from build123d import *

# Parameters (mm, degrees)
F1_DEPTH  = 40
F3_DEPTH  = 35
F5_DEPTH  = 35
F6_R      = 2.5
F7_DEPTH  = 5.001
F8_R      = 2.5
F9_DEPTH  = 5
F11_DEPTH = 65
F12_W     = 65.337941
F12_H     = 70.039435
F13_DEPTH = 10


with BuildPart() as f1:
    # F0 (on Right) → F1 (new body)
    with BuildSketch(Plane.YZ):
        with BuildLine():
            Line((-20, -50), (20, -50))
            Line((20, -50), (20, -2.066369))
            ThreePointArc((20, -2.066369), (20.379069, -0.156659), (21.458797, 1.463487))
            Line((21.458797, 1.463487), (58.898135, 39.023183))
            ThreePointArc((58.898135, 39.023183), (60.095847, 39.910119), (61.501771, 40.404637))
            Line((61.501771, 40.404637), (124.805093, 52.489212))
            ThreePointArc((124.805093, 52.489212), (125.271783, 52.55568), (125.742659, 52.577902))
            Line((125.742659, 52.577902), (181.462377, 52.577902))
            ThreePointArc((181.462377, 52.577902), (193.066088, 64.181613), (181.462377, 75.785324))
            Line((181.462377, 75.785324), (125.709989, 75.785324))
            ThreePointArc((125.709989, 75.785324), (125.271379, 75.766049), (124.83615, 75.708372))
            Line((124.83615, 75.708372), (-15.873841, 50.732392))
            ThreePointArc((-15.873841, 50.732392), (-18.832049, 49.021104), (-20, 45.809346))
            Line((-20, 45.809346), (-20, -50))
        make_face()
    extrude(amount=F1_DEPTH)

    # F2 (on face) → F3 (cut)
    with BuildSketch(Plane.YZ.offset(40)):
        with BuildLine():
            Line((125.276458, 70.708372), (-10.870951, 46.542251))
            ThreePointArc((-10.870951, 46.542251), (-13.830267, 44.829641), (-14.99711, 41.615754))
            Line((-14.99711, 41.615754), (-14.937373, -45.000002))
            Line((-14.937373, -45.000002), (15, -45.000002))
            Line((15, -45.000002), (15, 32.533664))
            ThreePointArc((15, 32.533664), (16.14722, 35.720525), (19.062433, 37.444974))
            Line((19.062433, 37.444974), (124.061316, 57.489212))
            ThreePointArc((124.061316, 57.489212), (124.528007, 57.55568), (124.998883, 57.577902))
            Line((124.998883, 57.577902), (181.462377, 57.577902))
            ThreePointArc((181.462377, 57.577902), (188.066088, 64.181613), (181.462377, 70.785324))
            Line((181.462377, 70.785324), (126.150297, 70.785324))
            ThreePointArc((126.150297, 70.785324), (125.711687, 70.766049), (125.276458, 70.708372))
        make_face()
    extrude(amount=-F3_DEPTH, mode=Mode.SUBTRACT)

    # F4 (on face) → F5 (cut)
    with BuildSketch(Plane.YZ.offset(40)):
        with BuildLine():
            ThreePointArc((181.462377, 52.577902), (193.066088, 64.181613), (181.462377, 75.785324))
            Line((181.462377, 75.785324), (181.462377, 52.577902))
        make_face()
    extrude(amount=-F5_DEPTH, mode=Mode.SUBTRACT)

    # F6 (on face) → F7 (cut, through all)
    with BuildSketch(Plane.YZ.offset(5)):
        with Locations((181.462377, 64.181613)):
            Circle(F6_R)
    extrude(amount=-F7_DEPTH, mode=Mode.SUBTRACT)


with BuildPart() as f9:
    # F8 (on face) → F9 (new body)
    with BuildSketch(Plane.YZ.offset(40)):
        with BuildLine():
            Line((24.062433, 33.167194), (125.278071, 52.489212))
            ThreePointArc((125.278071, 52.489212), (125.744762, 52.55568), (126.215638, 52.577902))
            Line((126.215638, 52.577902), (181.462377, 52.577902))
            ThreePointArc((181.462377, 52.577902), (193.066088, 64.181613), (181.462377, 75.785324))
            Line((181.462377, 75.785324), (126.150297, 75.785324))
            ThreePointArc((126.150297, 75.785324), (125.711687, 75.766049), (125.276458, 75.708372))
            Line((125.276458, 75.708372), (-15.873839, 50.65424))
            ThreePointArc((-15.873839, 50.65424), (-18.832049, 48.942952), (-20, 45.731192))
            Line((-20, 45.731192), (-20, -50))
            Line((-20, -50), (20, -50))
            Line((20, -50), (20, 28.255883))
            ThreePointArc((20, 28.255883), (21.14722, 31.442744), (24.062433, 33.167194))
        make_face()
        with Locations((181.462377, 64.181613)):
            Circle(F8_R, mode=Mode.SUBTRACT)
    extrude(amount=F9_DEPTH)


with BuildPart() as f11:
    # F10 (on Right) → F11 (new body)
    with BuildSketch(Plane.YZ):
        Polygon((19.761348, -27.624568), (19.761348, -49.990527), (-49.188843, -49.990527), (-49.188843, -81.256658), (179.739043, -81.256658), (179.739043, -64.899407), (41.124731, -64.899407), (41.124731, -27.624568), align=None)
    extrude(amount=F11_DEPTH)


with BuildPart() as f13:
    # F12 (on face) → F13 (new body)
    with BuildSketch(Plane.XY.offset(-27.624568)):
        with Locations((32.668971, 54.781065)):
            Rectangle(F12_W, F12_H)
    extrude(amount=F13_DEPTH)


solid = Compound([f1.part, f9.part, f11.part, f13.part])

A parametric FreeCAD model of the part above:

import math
import FreeCAD as App
import Part
import Sketcher
from FreeCAD import Vector

doc = App.newDocument("Part")
body = doc.addObject("PartDesign::Body", "Body")

sketch1 = body.newObject("Sketcher::SketchObject", "Sketch")
sketch1.AttachmentSupport = (doc.getObject("YZ_Plane"), [""])
sketch1.MapMode = "FlatFace"
sketch1.addGeometry(Part.LineSegment(Vector(-20, -50, 0), Vector(20, -50, 0)), False)
sketch1.addGeometry(Part.LineSegment(Vector(20, -50, 0), Vector(20, -2.1, 0)), False)
sketch1.addGeometry(Part.ArcOfCircle(Part.Circle(Vector(25, -2.1, 0), Vector(0, 0, 1), 5), math.radians(135), math.radians(180)), False)
sketch1.addGeometry(Part.LineSegment(Vector(21.5, 1.5, 0), Vector(58.9, 39, 0)), False)
sketch1.addGeometry(Part.ArcOfCircle(Part.Circle(Vector(62.4, 35.5, 0), Vector(0, 0, 1), 5), math.radians(101), math.radians(135)), False)
sketch1.addGeometry(Part.LineSegment(Vector(61.5, 40.4, 0), Vector(124.8, 52.5, 0)), False)
sketch1.addGeometry(Part.ArcOfCircle(Part.Circle(Vector(125.7, 47.6, 0), Vector(0, 0, 1), 5), math.radians(90), math.radians(100.81)), False)
sketch1.addGeometry(Part.LineSegment(Vector(125.7, 52.6, 0), Vector(181.5, 52.6, 0)), False)
sketch1.addGeometry(Part.ArcOfCircle(Part.Circle(Vector(181.5, 64.2, 0), Vector(0, 0, 1), 11.6), math.radians(-90), math.radians(90)), False)
sketch1.addGeometry(Part.LineSegment(Vector(181.5, 75.8, 0), Vector(125.7, 75.8, 0)), False)
sketch1.addGeometry(Part.ArcOfCircle(Part.Circle(Vector(125.7, 70.8, 0), Vector(0, 0, 1), 5), math.radians(90), math.radians(100.07)), False)
sketch1.addGeometry(Part.LineSegment(Vector(124.8, 75.7, 0), Vector(-15.9, 50.7, 0)), False)
sketch1.addGeometry(Part.ArcOfCircle(Part.Circle(Vector(-15, 45.8, 0), Vector(0, 0, 1), 5), math.radians(100), math.radians(180)), False)
sketch1.addGeometry(Part.LineSegment(Vector(-20, 45.8, 0), Vector(-20, -50, 0)), False)
sketch1.addConstraint(Sketcher.Constraint("Coincident", 0, 2, 1, 1))
sketch1.addConstraint(Sketcher.Constraint("Tangent", 1, 2, 2, 2))
sketch1.addConstraint(Sketcher.Constraint("Tangent", 2, 1, 3, 1))
sketch1.addConstraint(Sketcher.Constraint("Tangent", 3, 2, 4, 2))
sketch1.addConstraint(Sketcher.Constraint("Tangent", 4, 1, 5, 1))
sketch1.addConstraint(Sketcher.Constraint("Tangent", 5, 2, 6, 2))
sketch1.addConstraint(Sketcher.Constraint("Tangent", 6, 1, 7, 1))
sketch1.addConstraint(Sketcher.Constraint("Tangent", 7, 2, 8, 1))
sketch1.addConstraint(Sketcher.Constraint("Tangent", 8, 2, 9, 1))
sketch1.addConstraint(Sketcher.Constraint("Tangent", 9, 2, 10, 1))
sketch1.addConstraint(Sketcher.Constraint("Tangent", 10, 2, 11, 1))
sketch1.addConstraint(Sketcher.Constraint("Tangent", 11, 2, 12, 1))
sketch1.addConstraint(Sketcher.Constraint("Tangent", 12, 2, 13, 1))
sketch1.addConstraint(Sketcher.Constraint("Coincident", 13, 2, 0, 1))
sketch1.addConstraint(Sketcher.Constraint("Horizontal", 0))
sketch1.addConstraint(Sketcher.Constraint("Vertical", 1))
sketch1.addConstraint(Sketcher.Constraint("Horizontal", 7))
sketch1.addConstraint(Sketcher.Constraint("Horizontal", 9))
sketch1.addConstraint(Sketcher.Constraint("Vertical", 13))
sketch1.addConstraint(Sketcher.Constraint("Equal", 6, 12))
sketch1.addConstraint(Sketcher.Constraint("Radius", 6, 4.999998))
sketch1.addConstraint(Sketcher.Constraint("DistanceX", 0, 1, 0, 2, 40.0))
sketch1.addConstraint(Sketcher.Constraint("DistanceX", 12, 3, -1, 1, 15.000001))
sketch1.addConstraint(Sketcher.Constraint("DistanceY", 0, 2, -1, 1, 50.0))
sketch1.addConstraint(Sketcher.Constraint("Radius", 8, 11.603711))
sketch1.addConstraint(Sketcher.Constraint("Radius", 2, 5.000007))
sketch1.addConstraint(Sketcher.Constraint("Radius", 4, 4.999996))
sketch1.addConstraint(Sketcher.Constraint("Radius", 10, 4.999944))
sketch1.addConstraint(Sketcher.Constraint("DistanceX", 9, 2, 9, 1, 55.752388))
sketch1.addConstraint(Sketcher.Constraint("DistanceY", 1, 1, 1, 2, 47.933631))
sketch1.addConstraint(Sketcher.Constraint("DistanceY", -1, 1, 6, 1, 52.577902))
sketch1.addConstraint(Sketcher.Constraint("DistanceY", 2, 3, 4, 3, 37.559702))
sketch1.addConstraint(Sketcher.Constraint("DistanceX", 3, 2, 4, 3, 3.541201))
sketch1.addConstraint(Sketcher.Constraint("Distance", 5, 64.44647))
sketch1.addConstraint(Sketcher.Constraint("DistanceX", 7, 1, 7, 2, 55.719718))
sketch1.addConstraint(Sketcher.Constraint("DistanceY", 13, 2, 13, 1, 95.809346))
pad1 = body.newObject("PartDesign::Pad", "Pad")
pad1.Profile = sketch1
pad1.Length = 40

sketch2 = body.newObject("Sketcher::SketchObject", "Sketch001")
sketch2.AttachmentSupport = (doc.getObject("YZ_Plane"), [""])
sketch2.MapMode = "FlatFace"
sketch2.AttachmentOffset = App.Placement(Vector(0, 0, 40), App.Rotation())
sketch2.addGeometry(Part.LineSegment(Vector(125.3, 70.7, 0), Vector(-10.9, 46.5, 0)), False)
sketch2.addGeometry(Part.ArcOfCircle(Part.Circle(Vector(-10, 41.6, 0), Vector(0, 0, 1), 5), math.radians(100), math.radians(180)), False)
sketch2.addGeometry(Part.LineSegment(Vector(-15, 41.6, 0), Vector(-14.9, -45, 0)), False)
sketch2.addGeometry(Part.LineSegment(Vector(-14.9, -45, 0), Vector(15, -45, 0)), False)
sketch2.addGeometry(Part.LineSegment(Vector(15, -45, 0), Vector(15, 32.5, 0)), False)
sketch2.addGeometry(Part.ArcOfCircle(Part.Circle(Vector(20, 32.5, 0), Vector(0, 0, 1), 5), math.radians(101), math.radians(180)), False)
sketch2.addGeometry(Part.LineSegment(Vector(19.1, 37.4, 0), Vector(124.1, 57.5, 0)), False)
sketch2.addGeometry(Part.ArcOfCircle(Part.Circle(Vector(125, 52.6, 0), Vector(0, 0, 1), 5), math.radians(90), math.radians(100.81)), False)
sketch2.addGeometry(Part.LineSegment(Vector(125, 57.6, 0), Vector(181.5, 57.6, 0)), False)
sketch2.addGeometry(Part.ArcOfCircle(Part.Circle(Vector(181.5, 64.2, 0), Vector(0, 0, 1), 6.6), math.radians(-90), math.radians(90)), False)
sketch2.addGeometry(Part.LineSegment(Vector(181.5, 70.8, 0), Vector(126.2, 70.8, 0)), False)
sketch2.addGeometry(Part.ArcOfCircle(Part.Circle(Vector(126.2, 65.8, 0), Vector(0, 0, 1), 5), math.radians(90), math.radians(100.07)), False)
sketch2.addConstraint(Sketcher.Constraint("Tangent", 0, 2, 1, 1))
sketch2.addConstraint(Sketcher.Constraint("Tangent", 1, 2, 2, 1))
sketch2.addConstraint(Sketcher.Constraint("Coincident", 2, 2, 3, 1))
sketch2.addConstraint(Sketcher.Constraint("Coincident", 3, 2, 4, 1))
sketch2.addConstraint(Sketcher.Constraint("Tangent", 4, 2, 5, 2))
sketch2.addConstraint(Sketcher.Constraint("Tangent", 5, 1, 6, 1))
sketch2.addConstraint(Sketcher.Constraint("Tangent", 6, 2, 7, 2))
sketch2.addConstraint(Sketcher.Constraint("Tangent", 7, 1, 8, 1))
sketch2.addConstraint(Sketcher.Constraint("Tangent", 8, 2, 9, 1))
sketch2.addConstraint(Sketcher.Constraint("Tangent", 9, 2, 10, 1))
sketch2.addConstraint(Sketcher.Constraint("Tangent", 10, 2, 11, 1))
sketch2.addConstraint(Sketcher.Constraint("Tangent", 11, 2, 0, 1))
sketch2.addConstraint(Sketcher.Constraint("Horizontal", 3))
sketch2.addConstraint(Sketcher.Constraint("Vertical", 4))
sketch2.addConstraint(Sketcher.Constraint("Horizontal", 8))
sketch2.addConstraint(Sketcher.Constraint("Horizontal", 10))
sketch2.addConstraint(Sketcher.Constraint("Equal", 1, 5))
sketch2.addConstraint(Sketcher.Constraint("Radius", 1, 5.000001))
sketch2.addConstraint(Sketcher.Constraint("DistanceX", -1, 1, 5, 3, 20.000001))
sketch2.addConstraint(Sketcher.Constraint("Radius", 7, 5.000019))
sketch2.addConstraint(Sketcher.Constraint("Radius", 9, 6.603711))
sketch2.addConstraint(Sketcher.Constraint("Radius", 11, 4.999944))
sketch2.addConstraint(Sketcher.Constraint("DistanceX", 10, 2, 10, 1, 55.31208))
sketch2.addConstraint(Sketcher.Constraint("DistanceY", -1, 1, 1, 3, 41.619202))
sketch2.addConstraint(Sketcher.Constraint("DistanceY", -1, 1, 7, 1, 57.577902))
sketch2.addConstraint(Sketcher.Constraint("DistanceY", 6, 2, 9, 3, 6.692401))
sketch2.addConstraint(Sketcher.Constraint("Distance", 6, 106.894981))
sketch2.addConstraint(Sketcher.Constraint("DistanceX", 3, 1, 3, 2, 29.937373))
sketch2.addConstraint(Sketcher.Constraint("DistanceX", 8, 1, 8, 2, 56.463494))
sketch2.addConstraint(Sketcher.Constraint("DistanceY", 4, 1, 4, 2, 77.533666))
sketch2.addConstraint(Sketcher.Constraint("DistanceX", 1, 3, -1, 1, 9.99711))
pocket1 = body.newObject("PartDesign::Pocket", "Pocket")
pocket1.Profile = sketch2
pocket1.Length = 35

sketch3 = body.newObject("Sketcher::SketchObject", "Sketch002")
sketch3.AttachmentSupport = (doc.getObject("YZ_Plane"), [""])
sketch3.MapMode = "FlatFace"
sketch3.AttachmentOffset = App.Placement(Vector(0, 0, 40), App.Rotation())
sketch3.addGeometry(Part.ArcOfCircle(Part.Circle(Vector(181, 64, 0), Vector(0, 0, 1), 12), math.radians(-90), math.radians(90)), False)
sketch3.addGeometry(Part.LineSegment(Vector(181, 76, 0), Vector(181, 53, 0)), False)
sketch3.addConstraint(Sketcher.Constraint("Coincident", 0, 1, 1, 2))
sketch3.addConstraint(Sketcher.Constraint("Coincident", 1, 1, 0, 2))
sketch3.addConstraint(Sketcher.Constraint("Vertical", 1))
sketch3.addConstraint(Sketcher.Constraint("Radius", 0, 11.603711))
sketch3.addConstraint(Sketcher.Constraint("DistanceY", -1, 1, 0, 1, 52.577902))
sketch3.addConstraint(Sketcher.Constraint("DistanceX", -1, 1, 0, 3, 181.462377))
sketch3.addConstraint(Sketcher.Constraint("DistanceX", -1, 1, 0, 1, 181.462377))
pocket2 = body.newObject("PartDesign::Pocket", "Pocket001")
pocket2.Profile = sketch3
pocket2.Length = 35

sketch4 = body.newObject("Sketcher::SketchObject", "Sketch003")
sketch4.AttachmentSupport = (doc.getObject("YZ_Plane"), [""])
sketch4.MapMode = "FlatFace"
sketch4.AttachmentOffset = App.Placement(Vector(0, 0, 5), App.Rotation())
sketch4.addGeometry(Part.Circle(Vector(181.5, 64.2, 0), Vector(0, 0, 1), 2.5), False)
sketch4.addConstraint(Sketcher.Constraint("Diameter", 0, 5.0))
sketch4.addConstraint(Sketcher.Constraint("DistanceX", -1, 1, 0, 3, 181.462377))
sketch4.addConstraint(Sketcher.Constraint("DistanceY", -1, 1, 0, 3, 64.181613))
pocket3 = body.newObject("PartDesign::Pocket", "Pocket002")
pocket3.Profile = sketch4
pocket3.Type = "ThroughAll"
body2 = doc.addObject("PartDesign::Body", "Body001")

sketch5 = body2.newObject("Sketcher::SketchObject", "Sketch004")
sketch5.AttachmentSupport = (doc.getObject("YZ_Plane001"), [""])
sketch5.MapMode = "FlatFace"
sketch5.AttachmentOffset = App.Placement(Vector(0, 0, 40), App.Rotation())
sketch5.addGeometry(Part.LineSegment(Vector(24.1, 33.2, 0), Vector(125.3, 52.5, 0)), False)
sketch5.addGeometry(Part.ArcOfCircle(Part.Circle(Vector(126.2, 47.6, 0), Vector(0, 0, 1), 5), math.radians(90), math.radians(100.81)), False)
sketch5.addGeometry(Part.LineSegment(Vector(126.2, 52.6, 0), Vector(181.5, 52.6, 0)), False)
sketch5.addGeometry(Part.ArcOfCircle(Part.Circle(Vector(181.5, 64.2, 0), Vector(0, 0, 1), 11.6), math.radians(-90), math.radians(90)), False)
sketch5.addGeometry(Part.LineSegment(Vector(181.5, 75.8, 0), Vector(126.2, 75.8, 0)), False)
sketch5.addGeometry(Part.ArcOfCircle(Part.Circle(Vector(126.2, 70.8, 0), Vector(0, 0, 1), 5), math.radians(90), math.radians(100.07)), False)
sketch5.addGeometry(Part.LineSegment(Vector(125.3, 75.7, 0), Vector(-15.9, 50.7, 0)), False)
sketch5.addGeometry(Part.ArcOfCircle(Part.Circle(Vector(-15, 45.7, 0), Vector(0, 0, 1), 5), math.radians(100), math.radians(180)), False)
sketch5.addGeometry(Part.LineSegment(Vector(-20, 45.7, 0), Vector(-20, -50, 0)), False)
sketch5.addGeometry(Part.LineSegment(Vector(-20, -50, 0), Vector(20, -50, 0)), False)
sketch5.addGeometry(Part.LineSegment(Vector(20, -50, 0), Vector(20, 28.3, 0)), False)
sketch5.addGeometry(Part.ArcOfCircle(Part.Circle(Vector(25, 28.3, 0), Vector(0, 0, 1), 5), math.radians(101), math.radians(180)), False)
sketch5.addGeometry(Part.Circle(Vector(181.5, 64.2, 0), Vector(0, 0, 1), 2.5), False)
sketch5.addConstraint(Sketcher.Constraint("Tangent", 0, 2, 1, 2))
sketch5.addConstraint(Sketcher.Constraint("Tangent", 1, 1, 2, 1))
sketch5.addConstraint(Sketcher.Constraint("Tangent", 2, 2, 3, 1))
sketch5.addConstraint(Sketcher.Constraint("Tangent", 3, 2, 4, 1))
sketch5.addConstraint(Sketcher.Constraint("Tangent", 4, 2, 5, 1))
sketch5.addConstraint(Sketcher.Constraint("Tangent", 5, 2, 6, 1))
sketch5.addConstraint(Sketcher.Constraint("Tangent", 6, 2, 7, 1))
sketch5.addConstraint(Sketcher.Constraint("Tangent", 7, 2, 8, 1))
sketch5.addConstraint(Sketcher.Constraint("Coincident", 8, 2, 9, 1))
sketch5.addConstraint(Sketcher.Constraint("Coincident", 9, 2, 10, 1))
sketch5.addConstraint(Sketcher.Constraint("Tangent", 10, 2, 11, 2))
sketch5.addConstraint(Sketcher.Constraint("Tangent", 11, 1, 0, 1))
sketch5.addConstraint(Sketcher.Constraint("Horizontal", 2))
sketch5.addConstraint(Sketcher.Constraint("Horizontal", 4))
sketch5.addConstraint(Sketcher.Constraint("Vertical", 8))
sketch5.addConstraint(Sketcher.Constraint("Horizontal", 9))
sketch5.addConstraint(Sketcher.Constraint("Vertical", 10))
sketch5.addConstraint(Sketcher.Constraint("Coincident", 12, 3, 3, 3))
sketch5.addConstraint(Sketcher.Constraint("Diameter", 12, 5.0))
sketch5.addConstraint(Sketcher.Constraint("Radius", 7, 4.999999))
sketch5.addConstraint(Sketcher.Constraint("DistanceX", 9, 1, 9, 2, 40.0))
sketch5.addConstraint(Sketcher.Constraint("DistanceX", 7, 3, -1, 1, 15.000001))
sketch5.addConstraint(Sketcher.Constraint("DistanceY", 8, 2, -1, 1, 50.0))
sketch5.addConstraint(Sketcher.Constraint("Radius", 1, 5.000019))
sketch5.addConstraint(Sketcher.Constraint("Radius", 3, 11.603711))
sketch5.addConstraint(Sketcher.Constraint("Radius", 5, 4.999944))
sketch5.addConstraint(Sketcher.Constraint("Radius", 11, 5.000003))
sketch5.addConstraint(Sketcher.Constraint("DistanceY", 11, 3, 1, 3, 19.322001))
sketch5.addConstraint(Sketcher.Constraint("DistanceY", 11, 1, 7, 3, 12.563999))
sketch5.addConstraint(Sketcher.Constraint("DistanceX", 2, 1, 2, 2, 55.246739))
sketch5.addConstraint(Sketcher.Constraint("DistanceX", 4, 2, 4, 1, 55.31208))
sketch5.addConstraint(Sketcher.Constraint("DistanceY", 8, 2, 8, 1, 95.731192))
sketch5.addConstraint(Sketcher.Constraint("DistanceX", -1, 1, 1, 3, 126.215641))
pad2 = body2.newObject("PartDesign::Pad", "Pad001")
pad2.Profile = sketch5
pad2.Length = 5
body3 = doc.addObject("PartDesign::Body", "Body002")

sketch6 = body3.newObject("Sketcher::SketchObject", "Sketch005")
sketch6.AttachmentSupport = (doc.getObject("YZ_Plane002"), [""])
sketch6.MapMode = "FlatFace"
sketch6.addGeometry(Part.LineSegment(Vector(20, -28, 0), Vector(20, -50, 0)), False)
sketch6.addGeometry(Part.LineSegment(Vector(20, -50, 0), Vector(-49, -50, 0)), False)
sketch6.addGeometry(Part.LineSegment(Vector(-49, -50, 0), Vector(-49, -81, 0)), False)
sketch6.addGeometry(Part.LineSegment(Vector(-49, -81, 0), Vector(180, -81, 0)), False)
sketch6.addGeometry(Part.LineSegment(Vector(180, -81, 0), Vector(180, -65, 0)), False)
sketch6.addGeometry(Part.LineSegment(Vector(180, -65, 0), Vector(41, -65, 0)), False)
sketch6.addGeometry(Part.LineSegment(Vector(41, -65, 0), Vector(41, -28, 0)), False)
sketch6.addGeometry(Part.LineSegment(Vector(41, -28, 0), Vector(20, -28, 0)), False)
sketch6.addConstraint(Sketcher.Constraint("Coincident", 0, 2, 1, 1))
sketch6.addConstraint(Sketcher.Constraint("Coincident", 1, 2, 2, 1))
sketch6.addConstraint(Sketcher.Constraint("Coincident", 2, 2, 3, 1))
sketch6.addConstraint(Sketcher.Constraint("Coincident", 3, 2, 4, 1))
sketch6.addConstraint(Sketcher.Constraint("Coincident", 4, 2, 5, 1))
sketch6.addConstraint(Sketcher.Constraint("Coincident", 5, 2, 6, 1))
sketch6.addConstraint(Sketcher.Constraint("Coincident", 6, 2, 7, 1))
sketch6.addConstraint(Sketcher.Constraint("Coincident", 7, 2, 0, 1))
sketch6.addConstraint(Sketcher.Constraint("Vertical", 0))
sketch6.addConstraint(Sketcher.Constraint("Horizontal", 1))
sketch6.addConstraint(Sketcher.Constraint("Vertical", 2))
sketch6.addConstraint(Sketcher.Constraint("Horizontal", 3))
sketch6.addConstraint(Sketcher.Constraint("Vertical", 4))
sketch6.addConstraint(Sketcher.Constraint("Horizontal", 5))
sketch6.addConstraint(Sketcher.Constraint("Vertical", 6))
sketch6.addConstraint(Sketcher.Constraint("Horizontal", 7))
sketch6.addConstraint(Sketcher.Constraint("DistanceX", 1, 2, 1, 1, 68.950191))
sketch6.addConstraint(Sketcher.Constraint("DistanceY", 0, 2, 0, 1, 22.365959))
sketch6.addConstraint(Sketcher.Constraint("DistanceY", 2, 2, 2, 1, 31.266131))
sketch6.addConstraint(Sketcher.Constraint("DistanceY", 4, 1, 4, 2, 16.357251))
sketch6.addConstraint(Sketcher.Constraint("DistanceX", 3, 1, 3, 2, 228.927886))
sketch6.addConstraint(Sketcher.Constraint("DistanceX", 5, 2, 5, 1, 138.614312))
sketch6.addConstraint(Sketcher.Constraint("DistanceX", -1, 1, 0, 2, 19.761348))
sketch6.addConstraint(Sketcher.Constraint("DistanceY", 2, 2, -1, 1, 81.256658))
pad3 = body3.newObject("PartDesign::Pad", "Pad002")
pad3.Profile = sketch6
pad3.Length = 65
body4 = doc.addObject("PartDesign::Body", "Body003")

sketch7 = body4.newObject("Sketcher::SketchObject", "Sketch006")
sketch7.AttachmentSupport = (doc.getObject("XY_Plane003"), [""])
sketch7.MapMode = "FlatFace"
sketch7.AttachmentOffset = App.Placement(Vector(0, 0, -27.624568), App.Rotation())
sketch7.addGeometry(Part.LineSegment(Vector(0, 90, 0), Vector(0, 20, 0)), False)
sketch7.addGeometry(Part.LineSegment(Vector(0, 20, 0), Vector(65, 20, 0)), False)
sketch7.addGeometry(Part.LineSegment(Vector(65, 20, 0), Vector(65, 90, 0)), False)
sketch7.addGeometry(Part.LineSegment(Vector(65, 90, 0), Vector(0, 90, 0)), False)
sketch7.addConstraint(Sketcher.Constraint("Coincident", 0, 2, 1, 1))
sketch7.addConstraint(Sketcher.Constraint("Coincident", 1, 2, 2, 1))
sketch7.addConstraint(Sketcher.Constraint("Coincident", 2, 2, 3, 1))
sketch7.addConstraint(Sketcher.Constraint("Coincident", 3, 2, 0, 1))
sketch7.addConstraint(Sketcher.Constraint("Vertical", 0))
sketch7.addConstraint(Sketcher.Constraint("Horizontal", 1))
sketch7.addConstraint(Sketcher.Constraint("Vertical", 2))
sketch7.addConstraint(Sketcher.Constraint("Horizontal", 3))
sketch7.addConstraint(Sketcher.Constraint("PointOnObject", 0, 2, -2))
sketch7.addConstraint(Sketcher.Constraint("DistanceX", 1, 1, 1, 2, 65.337941))
sketch7.addConstraint(Sketcher.Constraint("DistanceY", 0, 2, 0, 1, 70.039435))
sketch7.addConstraint(Sketcher.Constraint("DistanceY", -1, 1, 0, 2, 19.761347))
pad4 = body4.newObject("PartDesign::Pad", "Pad003")
pad4.Profile = sketch7
pad4.Length = 10

doc.recompute()
